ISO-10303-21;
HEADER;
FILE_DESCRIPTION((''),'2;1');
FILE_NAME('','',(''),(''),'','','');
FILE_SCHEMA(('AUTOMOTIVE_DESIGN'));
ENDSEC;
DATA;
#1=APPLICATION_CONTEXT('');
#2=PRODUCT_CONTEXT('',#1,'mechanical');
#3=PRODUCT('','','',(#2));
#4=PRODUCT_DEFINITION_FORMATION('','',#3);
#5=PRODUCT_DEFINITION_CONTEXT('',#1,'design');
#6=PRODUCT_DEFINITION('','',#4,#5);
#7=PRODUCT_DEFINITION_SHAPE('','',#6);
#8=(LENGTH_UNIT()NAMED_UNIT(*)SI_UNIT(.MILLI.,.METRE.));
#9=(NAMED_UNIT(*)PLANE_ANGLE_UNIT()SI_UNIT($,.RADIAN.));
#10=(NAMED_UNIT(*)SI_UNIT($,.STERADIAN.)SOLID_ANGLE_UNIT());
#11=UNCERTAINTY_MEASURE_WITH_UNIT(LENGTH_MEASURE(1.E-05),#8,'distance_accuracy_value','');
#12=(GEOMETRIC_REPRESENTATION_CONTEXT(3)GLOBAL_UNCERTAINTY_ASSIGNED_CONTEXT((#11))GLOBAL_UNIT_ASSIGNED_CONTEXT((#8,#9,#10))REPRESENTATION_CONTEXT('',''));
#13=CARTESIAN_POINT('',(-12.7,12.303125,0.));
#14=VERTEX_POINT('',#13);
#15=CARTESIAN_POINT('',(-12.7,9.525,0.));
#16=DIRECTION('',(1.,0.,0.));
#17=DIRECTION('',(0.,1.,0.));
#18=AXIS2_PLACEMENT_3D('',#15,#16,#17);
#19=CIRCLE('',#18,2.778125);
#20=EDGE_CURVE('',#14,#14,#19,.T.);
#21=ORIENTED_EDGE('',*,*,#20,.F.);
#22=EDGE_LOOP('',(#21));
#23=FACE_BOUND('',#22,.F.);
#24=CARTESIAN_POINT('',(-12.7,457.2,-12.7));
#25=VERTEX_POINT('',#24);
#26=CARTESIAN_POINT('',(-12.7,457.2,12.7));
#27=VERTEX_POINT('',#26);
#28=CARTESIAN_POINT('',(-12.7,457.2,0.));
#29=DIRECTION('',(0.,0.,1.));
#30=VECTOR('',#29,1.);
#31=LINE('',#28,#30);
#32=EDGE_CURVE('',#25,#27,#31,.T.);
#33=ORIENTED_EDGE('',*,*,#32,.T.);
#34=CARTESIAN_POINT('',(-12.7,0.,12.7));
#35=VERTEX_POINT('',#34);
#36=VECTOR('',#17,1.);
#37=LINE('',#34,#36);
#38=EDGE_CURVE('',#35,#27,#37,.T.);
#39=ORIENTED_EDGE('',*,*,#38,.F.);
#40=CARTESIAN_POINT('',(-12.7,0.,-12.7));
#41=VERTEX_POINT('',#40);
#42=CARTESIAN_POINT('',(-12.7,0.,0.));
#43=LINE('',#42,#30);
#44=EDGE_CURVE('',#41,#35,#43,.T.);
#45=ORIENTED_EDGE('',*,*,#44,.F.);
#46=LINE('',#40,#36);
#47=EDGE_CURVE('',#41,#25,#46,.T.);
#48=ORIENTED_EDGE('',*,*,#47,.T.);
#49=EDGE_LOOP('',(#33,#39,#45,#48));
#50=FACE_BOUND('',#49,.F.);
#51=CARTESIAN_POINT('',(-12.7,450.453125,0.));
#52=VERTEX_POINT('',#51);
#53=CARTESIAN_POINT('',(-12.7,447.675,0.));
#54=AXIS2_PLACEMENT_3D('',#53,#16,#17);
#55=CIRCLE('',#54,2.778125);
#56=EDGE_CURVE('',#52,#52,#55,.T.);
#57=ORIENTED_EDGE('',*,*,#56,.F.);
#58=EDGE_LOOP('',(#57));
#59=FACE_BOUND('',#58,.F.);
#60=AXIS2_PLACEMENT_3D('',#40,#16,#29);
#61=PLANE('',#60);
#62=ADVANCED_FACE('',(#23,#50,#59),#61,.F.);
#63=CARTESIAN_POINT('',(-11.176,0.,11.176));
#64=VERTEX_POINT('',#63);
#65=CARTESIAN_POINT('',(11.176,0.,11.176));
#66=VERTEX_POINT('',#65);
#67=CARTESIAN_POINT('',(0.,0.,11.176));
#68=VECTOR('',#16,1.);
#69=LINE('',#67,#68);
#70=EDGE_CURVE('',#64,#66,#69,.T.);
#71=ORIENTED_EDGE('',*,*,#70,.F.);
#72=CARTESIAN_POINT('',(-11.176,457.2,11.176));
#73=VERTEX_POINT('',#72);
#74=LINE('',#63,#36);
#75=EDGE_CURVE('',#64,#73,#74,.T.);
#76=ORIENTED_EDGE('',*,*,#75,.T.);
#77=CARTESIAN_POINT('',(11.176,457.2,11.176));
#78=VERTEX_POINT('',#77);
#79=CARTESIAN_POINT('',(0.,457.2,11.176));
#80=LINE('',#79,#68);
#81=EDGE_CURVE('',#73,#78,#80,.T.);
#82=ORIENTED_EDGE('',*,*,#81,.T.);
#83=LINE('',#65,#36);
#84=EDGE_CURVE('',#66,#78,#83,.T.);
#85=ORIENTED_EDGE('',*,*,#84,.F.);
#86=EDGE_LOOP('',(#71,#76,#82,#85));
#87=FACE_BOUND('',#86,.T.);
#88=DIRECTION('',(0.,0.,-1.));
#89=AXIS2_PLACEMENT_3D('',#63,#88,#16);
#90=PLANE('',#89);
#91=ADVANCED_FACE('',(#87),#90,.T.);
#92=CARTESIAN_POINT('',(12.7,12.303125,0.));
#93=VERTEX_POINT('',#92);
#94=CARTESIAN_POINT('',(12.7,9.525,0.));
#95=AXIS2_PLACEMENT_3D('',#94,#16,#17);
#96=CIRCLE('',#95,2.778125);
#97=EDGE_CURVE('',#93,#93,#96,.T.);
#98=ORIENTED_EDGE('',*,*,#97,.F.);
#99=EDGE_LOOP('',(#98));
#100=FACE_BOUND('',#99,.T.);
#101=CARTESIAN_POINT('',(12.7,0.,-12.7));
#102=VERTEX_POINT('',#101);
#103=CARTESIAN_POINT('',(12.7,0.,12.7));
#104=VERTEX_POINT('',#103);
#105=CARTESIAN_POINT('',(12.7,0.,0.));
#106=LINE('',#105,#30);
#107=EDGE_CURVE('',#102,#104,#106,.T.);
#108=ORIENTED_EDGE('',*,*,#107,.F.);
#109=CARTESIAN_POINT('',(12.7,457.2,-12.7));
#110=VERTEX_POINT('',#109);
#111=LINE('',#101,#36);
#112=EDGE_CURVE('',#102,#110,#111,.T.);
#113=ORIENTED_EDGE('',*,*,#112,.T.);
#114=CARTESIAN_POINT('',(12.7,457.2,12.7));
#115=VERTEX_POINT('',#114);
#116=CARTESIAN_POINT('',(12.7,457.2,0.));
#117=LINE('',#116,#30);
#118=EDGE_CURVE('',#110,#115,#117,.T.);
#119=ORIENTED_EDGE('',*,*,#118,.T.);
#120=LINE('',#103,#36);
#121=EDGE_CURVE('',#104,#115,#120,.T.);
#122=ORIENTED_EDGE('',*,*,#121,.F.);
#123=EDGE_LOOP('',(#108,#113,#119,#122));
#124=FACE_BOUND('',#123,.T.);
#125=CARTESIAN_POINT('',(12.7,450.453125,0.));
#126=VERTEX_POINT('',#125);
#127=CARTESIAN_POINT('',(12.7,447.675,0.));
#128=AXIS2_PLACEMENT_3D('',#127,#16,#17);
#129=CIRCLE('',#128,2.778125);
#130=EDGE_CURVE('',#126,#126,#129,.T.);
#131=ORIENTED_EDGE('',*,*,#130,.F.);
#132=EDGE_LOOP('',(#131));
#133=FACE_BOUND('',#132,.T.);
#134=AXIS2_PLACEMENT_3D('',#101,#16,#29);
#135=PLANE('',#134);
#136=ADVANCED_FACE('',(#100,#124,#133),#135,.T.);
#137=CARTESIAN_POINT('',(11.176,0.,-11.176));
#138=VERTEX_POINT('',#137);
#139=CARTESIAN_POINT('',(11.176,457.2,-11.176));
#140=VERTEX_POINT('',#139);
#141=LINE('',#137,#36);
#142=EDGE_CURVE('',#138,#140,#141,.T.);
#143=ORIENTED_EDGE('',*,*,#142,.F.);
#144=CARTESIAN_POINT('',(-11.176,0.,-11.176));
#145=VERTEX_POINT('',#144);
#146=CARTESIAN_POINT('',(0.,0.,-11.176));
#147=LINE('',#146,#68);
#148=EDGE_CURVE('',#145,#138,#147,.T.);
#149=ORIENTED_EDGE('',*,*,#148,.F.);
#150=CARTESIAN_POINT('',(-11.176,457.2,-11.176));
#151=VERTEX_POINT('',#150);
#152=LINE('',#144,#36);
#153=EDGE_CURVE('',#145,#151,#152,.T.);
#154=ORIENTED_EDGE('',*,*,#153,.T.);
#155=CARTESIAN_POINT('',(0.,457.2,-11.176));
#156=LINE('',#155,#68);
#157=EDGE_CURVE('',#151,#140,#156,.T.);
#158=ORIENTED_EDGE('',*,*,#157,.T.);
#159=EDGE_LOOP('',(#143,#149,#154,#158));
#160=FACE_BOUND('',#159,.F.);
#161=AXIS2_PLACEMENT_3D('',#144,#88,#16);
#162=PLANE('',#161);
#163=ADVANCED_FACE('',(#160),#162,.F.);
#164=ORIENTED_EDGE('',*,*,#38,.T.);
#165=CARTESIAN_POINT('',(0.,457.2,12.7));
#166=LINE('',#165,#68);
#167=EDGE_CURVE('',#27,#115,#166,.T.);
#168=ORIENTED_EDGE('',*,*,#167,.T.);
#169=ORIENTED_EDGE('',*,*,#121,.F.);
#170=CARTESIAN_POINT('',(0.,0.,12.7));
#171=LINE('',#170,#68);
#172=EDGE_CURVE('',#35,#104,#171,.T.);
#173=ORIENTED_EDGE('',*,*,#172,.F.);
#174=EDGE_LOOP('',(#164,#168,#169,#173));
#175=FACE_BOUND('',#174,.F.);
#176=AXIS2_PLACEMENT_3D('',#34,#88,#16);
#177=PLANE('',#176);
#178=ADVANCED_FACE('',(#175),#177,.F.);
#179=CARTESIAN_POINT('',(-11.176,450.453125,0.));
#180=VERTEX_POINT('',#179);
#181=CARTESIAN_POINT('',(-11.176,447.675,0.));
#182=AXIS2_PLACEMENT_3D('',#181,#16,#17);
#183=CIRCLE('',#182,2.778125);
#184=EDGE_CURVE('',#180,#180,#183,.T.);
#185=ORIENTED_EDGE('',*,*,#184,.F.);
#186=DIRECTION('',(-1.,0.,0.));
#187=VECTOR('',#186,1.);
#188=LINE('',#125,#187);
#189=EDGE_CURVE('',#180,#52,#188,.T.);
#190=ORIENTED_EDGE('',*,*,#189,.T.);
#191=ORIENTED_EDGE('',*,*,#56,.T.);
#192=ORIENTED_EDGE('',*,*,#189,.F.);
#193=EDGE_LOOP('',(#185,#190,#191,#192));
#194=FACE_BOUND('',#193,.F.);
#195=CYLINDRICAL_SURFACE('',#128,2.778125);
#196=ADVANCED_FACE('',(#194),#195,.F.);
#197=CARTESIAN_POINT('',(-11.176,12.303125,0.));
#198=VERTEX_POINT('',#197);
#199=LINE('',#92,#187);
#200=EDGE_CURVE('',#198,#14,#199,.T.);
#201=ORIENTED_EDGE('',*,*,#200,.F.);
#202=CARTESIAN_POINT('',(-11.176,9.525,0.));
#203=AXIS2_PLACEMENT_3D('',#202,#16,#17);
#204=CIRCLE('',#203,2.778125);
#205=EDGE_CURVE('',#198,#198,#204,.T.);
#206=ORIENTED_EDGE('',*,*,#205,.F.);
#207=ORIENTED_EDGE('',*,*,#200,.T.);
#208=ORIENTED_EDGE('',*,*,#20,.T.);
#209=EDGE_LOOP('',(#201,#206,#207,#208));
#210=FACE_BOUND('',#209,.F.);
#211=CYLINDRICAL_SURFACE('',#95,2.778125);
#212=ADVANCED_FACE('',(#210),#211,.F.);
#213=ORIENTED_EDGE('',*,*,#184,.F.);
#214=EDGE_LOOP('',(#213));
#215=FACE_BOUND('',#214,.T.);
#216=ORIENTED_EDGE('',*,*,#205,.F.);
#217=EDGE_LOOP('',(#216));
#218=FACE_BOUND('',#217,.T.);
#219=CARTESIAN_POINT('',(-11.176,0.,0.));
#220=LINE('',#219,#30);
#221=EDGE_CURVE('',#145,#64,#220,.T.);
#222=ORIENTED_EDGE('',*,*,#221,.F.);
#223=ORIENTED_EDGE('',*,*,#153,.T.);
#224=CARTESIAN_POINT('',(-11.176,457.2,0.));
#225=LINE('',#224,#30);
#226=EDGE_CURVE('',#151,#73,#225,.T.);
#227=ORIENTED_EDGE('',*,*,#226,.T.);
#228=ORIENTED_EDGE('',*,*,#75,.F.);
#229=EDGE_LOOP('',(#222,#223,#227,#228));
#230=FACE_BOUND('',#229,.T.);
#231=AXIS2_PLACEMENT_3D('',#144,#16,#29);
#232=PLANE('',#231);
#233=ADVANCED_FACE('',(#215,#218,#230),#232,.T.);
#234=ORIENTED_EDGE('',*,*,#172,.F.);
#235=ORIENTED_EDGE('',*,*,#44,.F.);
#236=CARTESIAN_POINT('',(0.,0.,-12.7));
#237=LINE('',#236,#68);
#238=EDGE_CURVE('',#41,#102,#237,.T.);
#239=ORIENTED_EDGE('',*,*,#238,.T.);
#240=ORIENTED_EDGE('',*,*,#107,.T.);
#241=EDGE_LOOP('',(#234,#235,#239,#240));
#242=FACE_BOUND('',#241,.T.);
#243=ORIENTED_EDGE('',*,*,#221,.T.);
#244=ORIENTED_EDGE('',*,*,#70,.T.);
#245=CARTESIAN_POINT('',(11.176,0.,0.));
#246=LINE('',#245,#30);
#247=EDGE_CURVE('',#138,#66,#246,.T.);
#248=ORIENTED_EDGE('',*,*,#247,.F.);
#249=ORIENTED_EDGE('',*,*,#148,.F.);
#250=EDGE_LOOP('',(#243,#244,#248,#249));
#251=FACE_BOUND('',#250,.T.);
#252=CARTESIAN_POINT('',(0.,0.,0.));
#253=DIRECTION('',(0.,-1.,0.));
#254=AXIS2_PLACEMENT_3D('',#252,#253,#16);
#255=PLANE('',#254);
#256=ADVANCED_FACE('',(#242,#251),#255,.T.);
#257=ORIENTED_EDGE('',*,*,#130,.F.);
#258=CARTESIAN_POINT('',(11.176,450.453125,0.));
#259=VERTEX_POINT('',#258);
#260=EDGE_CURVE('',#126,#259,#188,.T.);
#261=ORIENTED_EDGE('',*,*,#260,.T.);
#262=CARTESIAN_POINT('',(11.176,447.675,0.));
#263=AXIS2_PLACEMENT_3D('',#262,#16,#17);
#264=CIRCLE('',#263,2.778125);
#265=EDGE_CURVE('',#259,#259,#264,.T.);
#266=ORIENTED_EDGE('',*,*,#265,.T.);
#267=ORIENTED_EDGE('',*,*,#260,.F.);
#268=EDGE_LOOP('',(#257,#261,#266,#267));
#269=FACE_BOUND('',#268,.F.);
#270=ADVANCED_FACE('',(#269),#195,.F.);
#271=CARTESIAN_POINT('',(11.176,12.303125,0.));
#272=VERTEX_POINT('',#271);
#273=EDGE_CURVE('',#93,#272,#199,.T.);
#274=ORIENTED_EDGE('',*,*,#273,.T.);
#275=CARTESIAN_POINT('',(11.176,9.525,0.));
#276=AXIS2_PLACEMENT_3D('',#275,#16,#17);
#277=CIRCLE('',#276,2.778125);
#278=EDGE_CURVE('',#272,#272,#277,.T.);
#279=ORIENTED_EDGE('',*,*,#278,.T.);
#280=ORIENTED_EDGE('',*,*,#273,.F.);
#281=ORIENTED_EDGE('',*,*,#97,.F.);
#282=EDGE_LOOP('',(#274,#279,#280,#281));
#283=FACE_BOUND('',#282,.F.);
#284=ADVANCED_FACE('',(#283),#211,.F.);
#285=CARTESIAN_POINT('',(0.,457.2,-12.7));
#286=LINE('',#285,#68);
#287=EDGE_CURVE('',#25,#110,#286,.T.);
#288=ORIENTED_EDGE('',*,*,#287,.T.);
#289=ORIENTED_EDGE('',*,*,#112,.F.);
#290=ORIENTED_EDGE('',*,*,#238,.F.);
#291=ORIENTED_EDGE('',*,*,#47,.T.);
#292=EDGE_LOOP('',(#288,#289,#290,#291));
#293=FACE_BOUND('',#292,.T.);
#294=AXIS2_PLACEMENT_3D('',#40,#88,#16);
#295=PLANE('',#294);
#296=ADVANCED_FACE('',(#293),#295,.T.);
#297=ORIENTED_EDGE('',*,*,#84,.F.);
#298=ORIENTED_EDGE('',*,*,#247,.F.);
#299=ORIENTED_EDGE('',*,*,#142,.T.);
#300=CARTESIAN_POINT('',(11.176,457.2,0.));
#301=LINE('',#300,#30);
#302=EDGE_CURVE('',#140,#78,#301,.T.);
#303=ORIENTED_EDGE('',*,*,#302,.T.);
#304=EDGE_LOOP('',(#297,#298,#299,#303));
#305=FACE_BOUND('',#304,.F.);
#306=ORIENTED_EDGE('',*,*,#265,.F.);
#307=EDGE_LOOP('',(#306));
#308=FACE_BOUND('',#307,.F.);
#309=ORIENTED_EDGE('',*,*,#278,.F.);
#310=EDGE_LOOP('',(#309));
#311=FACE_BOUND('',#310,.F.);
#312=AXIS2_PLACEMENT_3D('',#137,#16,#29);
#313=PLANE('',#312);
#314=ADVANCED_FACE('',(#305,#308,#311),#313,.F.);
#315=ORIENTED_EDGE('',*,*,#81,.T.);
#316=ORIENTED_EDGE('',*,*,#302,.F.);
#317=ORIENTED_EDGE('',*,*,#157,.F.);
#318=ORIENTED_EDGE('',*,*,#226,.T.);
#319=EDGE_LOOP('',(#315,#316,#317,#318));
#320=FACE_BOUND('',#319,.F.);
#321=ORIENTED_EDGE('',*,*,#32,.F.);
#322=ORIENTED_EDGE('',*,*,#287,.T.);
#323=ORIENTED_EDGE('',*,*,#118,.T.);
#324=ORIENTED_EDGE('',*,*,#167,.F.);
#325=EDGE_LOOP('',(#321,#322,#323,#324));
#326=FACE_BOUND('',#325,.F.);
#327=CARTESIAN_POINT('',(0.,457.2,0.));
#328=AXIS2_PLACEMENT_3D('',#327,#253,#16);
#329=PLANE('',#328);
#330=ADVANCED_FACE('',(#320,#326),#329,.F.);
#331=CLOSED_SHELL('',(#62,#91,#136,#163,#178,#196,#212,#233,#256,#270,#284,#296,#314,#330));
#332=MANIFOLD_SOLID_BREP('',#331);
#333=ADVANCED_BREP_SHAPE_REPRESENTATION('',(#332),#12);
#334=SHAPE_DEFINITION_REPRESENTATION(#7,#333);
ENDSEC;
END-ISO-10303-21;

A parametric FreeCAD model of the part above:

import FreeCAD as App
import Part
import Sketcher
from FreeCAD import Vector
Q = App.Units.Quantity


def add_polygon(sketch, points):
    """Adds a closed chain of lines whose ends are joined by coincident constraints."""
    first, n = sketch.GeometryCount, len(points)
    for a, b in zip(points, points[1:] + points[:1]):
        sketch.addGeometry(Part.LineSegment(App.Vector(*a, 0), App.Vector(*b, 0)), False)
    for i in range(n):
        sketch.addConstraint(Sketcher.Constraint("Coincident", first + i, 2, first + (i + 1) % n, 1))

doc = App.newDocument("Part")
body = doc.addObject("PartDesign::Body", "Body")

# Sketch on XZ plane
sketch1 = body.newObject("Sketcher::SketchObject", "Sketch")
sketch1.AttachmentSupport = (doc.getObject("XZ_Plane"), [""])
sketch1.MapMode = "FlatFace"
add_polygon(sketch1, [(-12.7, 12.7), (-12.7, -12.7), (12.7, -12.7), (12.7, 12.7)])  # lines 0-3
add_polygon(sketch1, [(11.176, -11.176), (-11.176, -11.176), (-11.176, 11.176), (11.176, 11.176)])  # lines 4-7
sketch1.addConstraint(Sketcher.Constraint("Vertical", 0))
sketch1.addConstraint(Sketcher.Constraint("Horizontal", 1))
sketch1.addConstraint(Sketcher.Constraint("Vertical", 2))
sketch1.addConstraint(Sketcher.Constraint("Horizontal", 3))
sketch1.addConstraint(Sketcher.Constraint("Horizontal", 4))
sketch1.addConstraint(Sketcher.Constraint("Vertical", 5))
sketch1.addConstraint(Sketcher.Constraint("Horizontal", 6))
sketch1.addConstraint(Sketcher.Constraint("Vertical", 7))
sketch1.addConstraint(Sketcher.Constraint("Symmetric", 0, 2, 2, 2, -1, 1))
sketch1.addConstraint(Sketcher.Constraint("Symmetric", 4, 2, 6, 2, -1, 1))
sketch1.addConstraint(Sketcher.Constraint("Equal", 3, 0))
sketch1.addConstraint(Sketcher.Constraint("Equal", 6, 5))
sketch1.addConstraint(Sketcher.Constraint("DistanceX", 1, 1, 1, 2, Q("1 in")))
sketch1.addConstraint(Sketcher.Constraint("DistanceX", 4, 2, 4, 1, Q("0.88 in")))
pad1 = body.newObject("PartDesign::Pad", "Pad")
pad1.Profile = sketch1
pad1.Length = Q("18 in")
pad1.Reversed = True

# Sketch on YZ plane
sketch2 = body.newObject("Sketcher::SketchObject", "Sketch001")
sketch2.AttachmentSupport = (doc.getObject("YZ_Plane"), [""])
sketch2.MapMode = "FlatFace"
sketch2.AttachmentOffset = App.Placement(Vector(0, 0, 0.5 * 25.4), App.Rotation())
sketch2.addGeometry(Part.Circle(Vector(9.525, 0, 0), Vector(0, 0, 1), 2.778125), False)
sketch2.addConstraint(Sketcher.Constraint("PointOnObject", 0, 3, -1))
sketch2.addConstraint(Sketcher.Constraint("Diameter", 0, Q("0.21875 in")))
sketch2.addConstraint(Sketcher.Constraint("DistanceX", -1, 1, 0, 3, Q("0.375 in")))
pocket1 = body.newObject("PartDesign::Pocket", "Pocket")
pocket1.Profile = sketch2
pocket1.Length = Q("1 in")

# Sketch on YZ plane
sketch3 = body.newObject("Sketcher::SketchObject", "Sketch002")
sketch3.AttachmentSupport = (doc.getObject("YZ_Plane"), [""])
sketch3.MapMode = "FlatFace"
sketch3.AttachmentOffset = App.Placement(Vector(0, 0, 0.5 * 25.4), App.Rotation())
sketch3.addGeometry(Part.Circle(Vector(447.675, 0, 0), Vector(0, 0, 1), 2.778125), False)
sketch3.addConstraint(Sketcher.Constraint("PointOnObject", 0, 3, -1))
sketch3.addConstraint(Sketcher.Constraint("Diameter", 0, Q("0.21875 in")))
sketch3.addConstraint(Sketcher.Constraint("DistanceX", -1, 1, 0, 3, Q("17.625 in")))
pocket2 = body.newObject("PartDesign::Pocket", "Pocket001")
pocket2.Profile = sketch3
pocket2.Length = Q("1 in")

doc.recompute()
